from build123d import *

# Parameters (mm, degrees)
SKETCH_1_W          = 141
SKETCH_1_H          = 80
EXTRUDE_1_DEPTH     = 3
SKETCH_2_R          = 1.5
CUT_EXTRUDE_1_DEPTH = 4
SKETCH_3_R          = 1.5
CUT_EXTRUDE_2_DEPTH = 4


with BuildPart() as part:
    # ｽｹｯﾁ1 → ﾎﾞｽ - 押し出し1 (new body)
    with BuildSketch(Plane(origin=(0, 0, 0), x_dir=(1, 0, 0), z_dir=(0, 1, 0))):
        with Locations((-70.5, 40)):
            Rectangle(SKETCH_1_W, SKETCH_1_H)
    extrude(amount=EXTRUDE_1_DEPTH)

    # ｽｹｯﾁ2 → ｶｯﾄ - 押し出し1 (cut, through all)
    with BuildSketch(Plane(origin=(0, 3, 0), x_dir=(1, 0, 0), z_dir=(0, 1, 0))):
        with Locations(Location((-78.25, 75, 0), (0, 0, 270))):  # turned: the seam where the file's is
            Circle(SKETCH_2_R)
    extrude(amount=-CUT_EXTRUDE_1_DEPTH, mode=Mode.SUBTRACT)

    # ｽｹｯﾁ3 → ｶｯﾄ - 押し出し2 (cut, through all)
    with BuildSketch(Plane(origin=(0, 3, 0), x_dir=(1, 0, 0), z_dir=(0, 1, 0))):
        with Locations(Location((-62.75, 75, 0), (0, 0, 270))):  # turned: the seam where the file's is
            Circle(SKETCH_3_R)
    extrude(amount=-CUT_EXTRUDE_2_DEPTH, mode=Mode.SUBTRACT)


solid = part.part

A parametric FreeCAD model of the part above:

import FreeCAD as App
import Part
import Sketcher

V = App.Vector
Q = App.Units.Quantity

doc = App.newDocument("Part")
params = doc.addObject("Spreadsheet::Sheet", "Params")
for row, (alias, value) in enumerate([
    ("sketch1_width", "141 mm"),
    ("sketch1_height", "80 mm"),
    ("pad1_length", "3 mm"),
    ("sketch2_diameter", "3 mm"),
    ("sketch3_diameter", "3 mm"),
], start=1):
    params.set(f"A{row}", alias)
    params.set(f"B{row}", "=" + value)
    params.setAlias(f"B{row}", alias)

body = doc.addObject("PartDesign::Body", "Body")

sketch1 = doc.addObject("Sketcher::SketchObject", "Sketch")
body.addObject(sketch1)
sketch1.AttachmentSupport = (doc.XZ_Plane, [""])
sketch1.MapMode = "FlatFace"
sketch1.addGeometry([
    Part.LineSegment(V(-141, -80, 0), V(-141, 0, 0)),
    Part.LineSegment(V(-141, 0, 0), V(0, 0, 0)),
    Part.LineSegment(V(0, 0, 0), V(0, -80, 0)),
    Part.LineSegment(V(0, -80, 0), V(-141, -80, 0)),
], False)
sketch1.addConstraint([
    Sketcher.Constraint("Coincident", 0, 2, 1, 1),
    Sketcher.Constraint("Coincident", 1, 2, 2, 1),
    Sketcher.Constraint("Coincident", 2, 2, 3, 1),
    Sketcher.Constraint("Coincident", 3, 2, 0, 1),
    Sketcher.Constraint("Vertical", 0),
    Sketcher.Constraint("Horizontal", 1),
    Sketcher.Constraint("Vertical", 2),
    Sketcher.Constraint("Horizontal", 3),
    Sketcher.Constraint("Coincident", 1, 2, -1, 1),
    Sketcher.Constraint("DistanceX", 1, 1, 1, 2, Q("141 mm")),
    Sketcher.Constraint("DistanceY", 0, 1, 0, 2, Q("80 mm")),
])
sketch1.setExpression("Constraints[9]", "Params.sketch1_width")
sketch1.setExpression("Constraints[10]", "Params.sketch1_height")
pad1 = doc.addObject("PartDesign::Pad", "Pad")
body.addObject(pad1)
pad1.Profile = sketch1
pad1.setExpression("Length", "Params.pad1_length")
pad1.Reversed = True

sketch2 = doc.addObject("Sketcher::SketchObject", "Sketch001")
body.addObject(sketch2)
sketch2.AttachmentSupport = (doc.XZ_Plane, [""])
sketch2.MapMode = "FlatFace"
sketch2.AttachmentOffset = App.Placement(V(0, 0, -3), App.Rotation())
sketch2.addGeometry(Part.Circle(V(-78.2, -75, 0), V(0, 0, 1), 1.5), False)
sketch2.addConstraint([
    Sketcher.Constraint("Diameter", 0, Q("3 mm")),
    Sketcher.Constraint("DistanceY", 0, 3, -1, 1, Q("75 mm")),
    Sketcher.Constraint("DistanceX", 0, 3, -1, 1, Q("78.25 mm")),
])
sketch2.setExpression("Constraints[0]", "Params.sketch2_diameter")
pocket1 = doc.addObject("PartDesign::Pocket", "Pocket")
body.addObject(pocket1)
pocket1.Profile = sketch2
pocket1.Type = "ThroughAll"
pocket1.Reversed = True

sketch3 = doc.addObject("Sketcher::SketchObject", "Sketch002")
body.addObject(sketch3)
sketch3.AttachmentSupport = (doc.XZ_Plane, [""])
sketch3.MapMode = "FlatFace"
sketch3.AttachmentOffset = App.Placement(V(0, 0, -3), App.Rotation())
sketch3.addGeometry(Part.Circle(V(-62.8, -75, 0), V(0, 0, 1), 1.5), False)
sketch3.addConstraint([
    Sketcher.Constraint("Diameter", 0, Q("3 mm")),
    Sketcher.Constraint("DistanceY", 0, 3, -1, 1, Q("75 mm")),
    Sketcher.Constraint("DistanceX", 0, 3, -1, 1, Q("62.75 mm")),
])
sketch3.setExpression("Constraints[0]", "Params.sketch3_diameter")
pocket2 = doc.addObject("PartDesign::Pocket", "Pocket001")
body.addObject(pocket2)
pocket2.Profile = sketch3
pocket2.Type = "ThroughAll"
pocket2.Reversed = True

doc.recompute()
